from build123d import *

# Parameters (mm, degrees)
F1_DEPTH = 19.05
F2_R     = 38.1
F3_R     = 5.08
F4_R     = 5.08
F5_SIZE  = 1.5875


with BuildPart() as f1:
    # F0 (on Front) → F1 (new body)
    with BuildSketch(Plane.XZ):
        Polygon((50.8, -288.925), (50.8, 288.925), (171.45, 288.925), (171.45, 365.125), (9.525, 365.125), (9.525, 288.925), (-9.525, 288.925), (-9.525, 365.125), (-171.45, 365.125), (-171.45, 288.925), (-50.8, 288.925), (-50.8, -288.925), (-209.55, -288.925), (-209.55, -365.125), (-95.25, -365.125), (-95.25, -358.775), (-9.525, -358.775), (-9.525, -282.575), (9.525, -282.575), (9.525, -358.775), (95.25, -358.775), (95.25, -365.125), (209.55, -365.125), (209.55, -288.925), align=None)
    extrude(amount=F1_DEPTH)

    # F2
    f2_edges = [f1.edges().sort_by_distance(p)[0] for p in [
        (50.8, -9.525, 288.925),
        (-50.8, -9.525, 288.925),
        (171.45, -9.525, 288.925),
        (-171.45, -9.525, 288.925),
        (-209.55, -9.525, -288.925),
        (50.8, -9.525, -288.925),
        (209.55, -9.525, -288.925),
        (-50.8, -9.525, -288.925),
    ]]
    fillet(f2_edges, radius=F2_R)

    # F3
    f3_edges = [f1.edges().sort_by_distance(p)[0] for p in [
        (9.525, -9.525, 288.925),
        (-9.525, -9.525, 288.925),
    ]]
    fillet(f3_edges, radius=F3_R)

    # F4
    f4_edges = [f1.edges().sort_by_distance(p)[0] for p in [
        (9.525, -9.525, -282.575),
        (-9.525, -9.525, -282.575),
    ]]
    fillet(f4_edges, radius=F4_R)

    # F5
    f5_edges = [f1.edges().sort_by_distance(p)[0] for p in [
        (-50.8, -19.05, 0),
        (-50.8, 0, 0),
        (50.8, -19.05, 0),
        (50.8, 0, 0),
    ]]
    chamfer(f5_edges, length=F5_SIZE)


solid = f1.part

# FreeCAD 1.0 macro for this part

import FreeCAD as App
import Part
import Sketcher
Q = App.Units.Quantity


def edges_at(feature, points):
    """Names of the edges that pass closest to the given points."""
    edges = feature.Shape.Edges
    near = lambda p: min(range(len(edges)), key=lambda i: edges[i].distToShape(Part.Vertex(*p))[0])
    return sorted({f"Edge{near(p) + 1}" for p in points})

doc = App.newDocument("Part")
body = doc.addObject("PartDesign::Body", "Body")

sketch1 = body.newObject("Sketcher::SketchObject", "Sketch")
sketch1.AttachmentSupport = (doc.getObject("XZ_Plane"), [""])
sketch1.MapMode = "FlatFace"
sketch1.addGeometry(Part.LineSegment(App.Vector(51, -289, 0), App.Vector(51, 289, 0)), False)
sketch1.addGeometry(Part.LineSegment(App.Vector(51, 289, 0), App.Vector(171, 289, 0)), False)
sketch1.addGeometry(Part.LineSegment(App.Vector(171, 289, 0), App.Vector(171, 365, 0)), False)
sketch1.addGeometry(Part.LineSegment(App.Vector(171, 365, 0), App.Vector(10, 365, 0)), False)
sketch1.addGeometry(Part.LineSegment(App.Vector(10, 365, 0), App.Vector(10, 289, 0)), False)
sketch1.addGeometry(Part.LineSegment(App.Vector(10, 289, 0), App.Vector(-10, 289, 0)), False)
sketch1.addGeometry(Part.LineSegment(App.Vector(-10, 289, 0), App.Vector(-10, 365, 0)), False)
sketch1.addGeometry(Part.LineSegment(App.Vector(-10, 365, 0), App.Vector(-171, 365, 0)), False)
sketch1.addGeometry(Part.LineSegment(App.Vector(-171, 365, 0), App.Vector(-171, 289, 0)), False)
sketch1.addGeometry(Part.LineSegment(App.Vector(-171, 289, 0), App.Vector(-51, 289, 0)), False)
sketch1.addGeometry(Part.LineSegment(App.Vector(-51, 289, 0), App.Vector(-51, -289, 0)), False)
sketch1.addGeometry(Part.LineSegment(App.Vector(-51, -289, 0), App.Vector(-210, -289, 0)), False)
sketch1.addGeometry(Part.LineSegment(App.Vector(-210, -289, 0), App.Vector(-210, -365, 0)), False)
sketch1.addGeometry(Part.LineSegment(App.Vector(-210, -365, 0), App.Vector(-95, -365, 0)), False)
sketch1.addGeometry(Part.LineSegment(App.Vector(-95, -365, 0), App.Vector(-95, -359, 0)), False)
sketch1.addGeometry(Part.LineSegment(App.Vector(-95, -359, 0), App.Vector(-10, -359, 0)), False)
sketch1.addGeometry(Part.LineSegment(App.Vector(-10, -359, 0), App.Vector(-10, -283, 0)), False)
sketch1.addGeometry(Part.LineSegment(App.Vector(-10, -283, 0), App.Vector(10, -283, 0)), False)
sketch1.addGeometry(Part.LineSegment(App.Vector(10, -283, 0), App.Vector(10, -359, 0)), False)
sketch1.addGeometry(Part.LineSegment(App.Vector(10, -359, 0), App.Vector(95, -359, 0)), False)
sketch1.addGeometry(Part.LineSegment(App.Vector(95, -359, 0), App.Vector(95, -365, 0)), False)
sketch1.addGeometry(Part.LineSegment(App.Vector(95, -365, 0), App.Vector(210, -365, 0)), False)
sketch1.addGeometry(Part.LineSegment(App.Vector(210, -365, 0), App.Vector(210, -289, 0)), False)
sketch1.addGeometry(Part.LineSegment(App.Vector(210, -289, 0), App.Vector(51, -289, 0)), False)
sketch1.addConstraint(Sketcher.Constraint("Coincident", 0, 2, 1, 1))
sketch1.addConstraint(Sketcher.Constraint("Coincident", 1, 2, 2, 1))
sketch1.addConstraint(Sketcher.Constraint("Coincident", 2, 2, 3, 1))
sketch1.addConstraint(Sketcher.Constraint("Coincident", 3, 2, 4, 1))
sketch1.addConstraint(Sketcher.Constraint("Coincident", 4, 2, 5, 1))
sketch1.addConstraint(Sketcher.Constraint("Coincident", 5, 2, 6, 1))
sketch1.addConstraint(Sketcher.Constraint("Coincident", 6, 2, 7, 1))
sketch1.addConstraint(Sketcher.Constraint("Coincident", 7, 2, 8, 1))
sketch1.addConstraint(Sketcher.Constraint("Coincident", 8, 2, 9, 1))
sketch1.addConstraint(Sketcher.Constraint("Coincident", 9, 2, 10, 1))
sketch1.addConstraint(Sketcher.Constraint("Coincident", 10, 2, 11, 1))
sketch1.addConstraint(Sketcher.Constraint("Coincident", 11, 2, 12, 1))
sketch1.addConstraint(Sketcher.Constraint("Coincident", 12, 2, 13, 1))
sketch1.addConstraint(Sketcher.Constraint("Coincident", 13, 2, 14, 1))
sketch1.addConstraint(Sketcher.Constraint("Coincident", 14, 2, 15, 1))
sketch1.addConstraint(Sketcher.Constraint("Coincident", 15, 2, 16, 1))
sketch1.addConstraint(Sketcher.Constraint("Coincident", 16, 2, 17, 1))
sketch1.addConstraint(Sketcher.Constraint("Coincident", 17, 2, 18, 1))
sketch1.addConstraint(Sketcher.Constraint("Coincident", 18, 2, 19, 1))
sketch1.addConstraint(Sketcher.Constraint("Coincident", 19, 2, 20, 1))
sketch1.addConstraint(Sketcher.Constraint("Coincident", 20, 2, 21, 1))
sketch1.addConstraint(Sketcher.Constraint("Coincident", 21, 2, 22, 1))
sketch1.addConstraint(Sketcher.Constraint("Coincident", 22, 2, 23, 1))
sketch1.addConstraint(Sketcher.Constraint("Coincident", 23, 2, 0, 1))
sketch1.addConstraint(Sketcher.Constraint("Vertical", 0))
sketch1.addConstraint(Sketcher.Constraint("Horizontal", 1))
sketch1.addConstraint(Sketcher.Constraint("Vertical", 2))
sketch1.addConstraint(Sketcher.Constraint("Horizontal", 3))
sketch1.addConstraint(Sketcher.Constraint("Vertical", 4))
sketch1.addConstraint(Sketcher.Constraint("Horizontal", 5))
sketch1.addConstraint(Sketcher.Constraint("Vertical", 6))
sketch1.addConstraint(Sketcher.Constraint("Horizontal", 7))
sketch1.addConstraint(Sketcher.Constraint("Vertical", 8))
sketch1.addConstraint(Sketcher.Constraint("Horizontal", 9))
sketch1.addConstraint(Sketcher.Constraint("Vertical", 10))
sketch1.addConstraint(Sketcher.Constraint("Horizontal", 11))
sketch1.addConstraint(Sketcher.Constraint("Vertical", 12))
sketch1.addConstraint(Sketcher.Constraint("Horizontal", 13))
sketch1.addConstraint(Sketcher.Constraint("Vertical", 14))
sketch1.addConstraint(Sketcher.Constraint("Horizontal", 15))
sketch1.addConstraint(Sketcher.Constraint("Vertical", 16))
sketch1.addConstraint(Sketcher.Constraint("Horizontal", 17))
sketch1.addConstraint(Sketcher.Constraint("Vertical", 18))
sketch1.addConstraint(Sketcher.Constraint("Horizontal", 19))
sketch1.addConstraint(Sketcher.Constraint("Vertical", 20))
sketch1.addConstraint(Sketcher.Constraint("Horizontal", 21))
sketch1.addConstraint(Sketcher.Constraint("Vertical", 22))
sketch1.addConstraint(Sketcher.Constraint("Horizontal", 23))
sketch1.addConstraint(Sketcher.Constraint("Symmetric", 0, 2, 10, 2, -1, 1))
sketch1.addConstraint(Sketcher.Constraint("Symmetric", 3, 2, 6, 2, -2))
sketch1.addConstraint(Sketcher.Constraint("Symmetric", 1, 2, 8, 2, -2))
sketch1.addConstraint(Sketcher.Constraint("Symmetric", 15, 2, 18, 2, -2))
sketch1.addConstraint(Sketcher.Constraint("Symmetric", 13, 2, 20, 2, -2))
sketch1.addConstraint(Sketcher.Constraint("Symmetric", 11, 2, 22, 2, -2))
sketch1.addConstraint(Sketcher.Constraint("Horizontal", 1, 2, 4, 2))
sketch1.addConstraint(Sketcher.Constraint("Vertical", 6, 2, 15, 2))
sketch1.addConstraint(Sketcher.Constraint("Equal", 8, 12))
sketch1.addConstraint(Sketcher.Constraint("Equal", 12, 16))
sketch1.addConstraint(Sketcher.Constraint("DistanceY", 2, 1, 2, 2, Q("3 in")))
sketch1.addConstraint(Sketcher.Constraint("DistanceX", 13, 1, 13, 2, Q("4.5 in")))
sketch1.addConstraint(Sketcher.Constraint("DistanceX", -1, 1, 0, 2, Q("2 in")))
sketch1.addConstraint(Sketcher.Constraint("DistanceX", 8, 2, 13, 2, Q("3 in")))
sketch1.addConstraint(Sketcher.Constraint("DistanceX", 1, 1, 1, 2, Q("4.75 in")))
sketch1.addConstraint(Sketcher.Constraint("DistanceX", 5, 2, 5, 1, Q("0.75 in")))
sketch1.addConstraint(Sketcher.Constraint("DistanceY", 0, 1, 0, 2, Q("22.75 in")))
sketch1.addConstraint(Sketcher.Constraint("DistanceY", 14, 1, 14, 2, Q("0.25 in")))
pad1 = body.newObject("PartDesign::Pad", "Pad")
pad1.Profile = sketch1
pad1.Length = Q("0.75 in")
doc.recompute()

fillet = body.newObject("PartDesign::Fillet", "Fillet")
fillet.Base = (pad1, edges_at(pad1, [
    (50.8, -9.525, 288.925),
    (-50.8, -9.525, 288.925),
    (171.45, -9.525, 288.925),
    (-171.45, -9.525, 288.925),
    (-209.55, -9.525, -288.925),
    (50.8, -9.525, -288.925),
    (209.55, -9.525, -288.925),
    (-50.8, -9.525, -288.925),
]))
fillet.Radius = Q("1.5 in")
doc.recompute()

fillet2 = body.newObject("PartDesign::Fillet", "Fillet001")
fillet2.Base = (fillet, edges_at(fillet, [(9.525, -9.525, 288.925), (-9.525, -9.525, 288.925)]))
fillet2.Radius = Q("0.2 in")
doc.recompute()

fillet3 = body.newObject("PartDesign::Fillet", "Fillet002")
fillet3.Base = (fillet2, edges_at(fillet2, [(9.525, -9.525, -282.575), (-9.525, -9.525, -282.575)]))
fillet3.Radius = Q("0.2 in")
doc.recompute()

chamfer = body.newObject("PartDesign::Chamfer", "Chamfer")
chamfer.Base = (fillet3, edges_at(fillet3, [
    (-50.8, -19.05, 0),
    (-50.8, 0, 0),
    (50.8, -19.05, 0),
    (50.8, 0, 0),
]))
chamfer.Size = Q("0.0625 in")

doc.recompute()
